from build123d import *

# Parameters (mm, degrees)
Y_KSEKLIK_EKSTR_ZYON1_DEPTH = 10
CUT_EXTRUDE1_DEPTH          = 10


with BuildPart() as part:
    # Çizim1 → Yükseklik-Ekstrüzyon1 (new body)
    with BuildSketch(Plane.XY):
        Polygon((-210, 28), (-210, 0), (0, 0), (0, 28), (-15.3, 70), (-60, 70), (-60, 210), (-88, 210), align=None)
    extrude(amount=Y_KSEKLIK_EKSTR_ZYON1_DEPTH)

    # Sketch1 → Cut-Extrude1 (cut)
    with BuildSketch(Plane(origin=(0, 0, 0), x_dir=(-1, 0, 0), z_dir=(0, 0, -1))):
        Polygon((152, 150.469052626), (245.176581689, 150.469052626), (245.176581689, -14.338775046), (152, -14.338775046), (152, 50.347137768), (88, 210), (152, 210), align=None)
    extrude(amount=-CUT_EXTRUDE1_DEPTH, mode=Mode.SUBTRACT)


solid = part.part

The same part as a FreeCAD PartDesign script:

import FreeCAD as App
import Part
import Sketcher


def add_polygon(sketch, points):
    """Adds a closed chain of lines whose ends are joined by coincident constraints."""
    first, n = sketch.GeometryCount, len(points)
    for a, b in zip(points, points[1:] + points[:1]):
        sketch.addGeometry(Part.LineSegment(App.Vector(*a, 0), App.Vector(*b, 0)), False)
    for i in range(n):
        sketch.addConstraint(Sketcher.Constraint("Coincident", first + i, 2, first + (i + 1) % n, 1))

doc = App.newDocument("Part")
body = doc.addObject("PartDesign::Body", "Body")

sketch1 = doc.addObject("Sketcher::SketchObject", "Sketch")
body.addObject(sketch1)
sketch1.AttachmentSupport = (doc.XY_Plane, [""])
sketch1.MapMode = "FlatFace"
add_polygon(sketch1, [(-210, 28), (-210, 0), (0, 0), (0, 28), (-15, 70), (-60, 70), (-60, 210), (-88, 210)])
sketch1.addConstraint(Sketcher.Constraint("Vertical", 0))
sketch1.addConstraint(Sketcher.Constraint("Horizontal", 1))
sketch1.addConstraint(Sketcher.Constraint("Vertical", 2))
sketch1.addConstraint(Sketcher.Constraint("Horizontal", 4))
sketch1.addConstraint(Sketcher.Constraint("Vertical", 5))
sketch1.addConstraint(Sketcher.Constraint("Horizontal", 6))
sketch1.addConstraint(Sketcher.Constraint("Coincident", 1, 2, -1, 1))
sketch1.addConstraint(Sketcher.Constraint("Horizontal", 2, 2, 7, 2))
sketch1.addConstraint(Sketcher.Constraint("Equal", 6, 0))
sketch1.addConstraint(Sketcher.Constraint("DistanceX", 1, 1, 1, 2, 210.0))
sketch1.addConstraint(Sketcher.Constraint("DistanceX", 6, 2, 6, 1, 28.0))
sketch1.addConstraint(Sketcher.Constraint("DistanceY", 5, 1, 5, 2, 140.0))
sketch1.addConstraint(Sketcher.Constraint("DistanceX", 4, 2, 4, 1, 44.7))
sketch1.addConstraint(Sketcher.Constraint("DistanceY", -1, 1, 3, 2, 70.0))
sketch1.addConstraint(Sketcher.Constraint("DistanceX", 4, 2, -1, 1, 60.0))
pad1 = doc.addObject("PartDesign::Pad", "Pad")
body.addObject(pad1)
pad1.Profile = sketch1
pad1.Length = 10

sketch2 = doc.addObject("Sketcher::SketchObject", "Sketch001")
body.addObject(sketch2)
sketch2.AttachmentSupport = (doc.XY_Plane, [""])
sketch2.MapMode = "FlatFace"
add_polygon(sketch2, [(-245, 150), (-152, 150), (-152, 210), (-88, 210), (-152, 50), (-152, -14), (-245, -14)])
sketch2.addConstraint(Sketcher.Constraint("Horizontal", 0))
sketch2.addConstraint(Sketcher.Constraint("Vertical", 1))
sketch2.addConstraint(Sketcher.Constraint("Horizontal", 2))
sketch2.addConstraint(Sketcher.Constraint("Vertical", 4))
sketch2.addConstraint(Sketcher.Constraint("Horizontal", 5))
sketch2.addConstraint(Sketcher.Constraint("Vertical", 6))
sketch2.addConstraint(Sketcher.Constraint("Vertical", 1, 2, 3, 2))
sketch2.addConstraint(Sketcher.Constraint("DistanceX", 2, 1, 2, 2, 64.0))
sketch2.addConstraint(Sketcher.Constraint("DistanceX", 0, 2, -1, 1, 152.0))
sketch2.addConstraint(Sketcher.Constraint("DistanceY", -1, 1, 1, 2, 210.0))
sketch2.addConstraint(Sketcher.Constraint("DistanceX", 0, 1, 0, 2, 93.176582))
sketch2.addConstraint(Sketcher.Constraint("DistanceY", 1, 1, 1, 2, 59.530947))
sketch2.addConstraint(Sketcher.Constraint("DistanceY", 4, 2, 4, 1, 64.685913))
sketch2.addConstraint(Sketcher.Constraint("DistanceY", 6, 1, 6, 2, 164.807828))
pocket1 = doc.addObject("PartDesign::Pocket", "Pocket")
body.addObject(pocket1)
pocket1.Profile = sketch2
pocket1.Length = 10
pocket1.Reversed = True

doc.recompute()
